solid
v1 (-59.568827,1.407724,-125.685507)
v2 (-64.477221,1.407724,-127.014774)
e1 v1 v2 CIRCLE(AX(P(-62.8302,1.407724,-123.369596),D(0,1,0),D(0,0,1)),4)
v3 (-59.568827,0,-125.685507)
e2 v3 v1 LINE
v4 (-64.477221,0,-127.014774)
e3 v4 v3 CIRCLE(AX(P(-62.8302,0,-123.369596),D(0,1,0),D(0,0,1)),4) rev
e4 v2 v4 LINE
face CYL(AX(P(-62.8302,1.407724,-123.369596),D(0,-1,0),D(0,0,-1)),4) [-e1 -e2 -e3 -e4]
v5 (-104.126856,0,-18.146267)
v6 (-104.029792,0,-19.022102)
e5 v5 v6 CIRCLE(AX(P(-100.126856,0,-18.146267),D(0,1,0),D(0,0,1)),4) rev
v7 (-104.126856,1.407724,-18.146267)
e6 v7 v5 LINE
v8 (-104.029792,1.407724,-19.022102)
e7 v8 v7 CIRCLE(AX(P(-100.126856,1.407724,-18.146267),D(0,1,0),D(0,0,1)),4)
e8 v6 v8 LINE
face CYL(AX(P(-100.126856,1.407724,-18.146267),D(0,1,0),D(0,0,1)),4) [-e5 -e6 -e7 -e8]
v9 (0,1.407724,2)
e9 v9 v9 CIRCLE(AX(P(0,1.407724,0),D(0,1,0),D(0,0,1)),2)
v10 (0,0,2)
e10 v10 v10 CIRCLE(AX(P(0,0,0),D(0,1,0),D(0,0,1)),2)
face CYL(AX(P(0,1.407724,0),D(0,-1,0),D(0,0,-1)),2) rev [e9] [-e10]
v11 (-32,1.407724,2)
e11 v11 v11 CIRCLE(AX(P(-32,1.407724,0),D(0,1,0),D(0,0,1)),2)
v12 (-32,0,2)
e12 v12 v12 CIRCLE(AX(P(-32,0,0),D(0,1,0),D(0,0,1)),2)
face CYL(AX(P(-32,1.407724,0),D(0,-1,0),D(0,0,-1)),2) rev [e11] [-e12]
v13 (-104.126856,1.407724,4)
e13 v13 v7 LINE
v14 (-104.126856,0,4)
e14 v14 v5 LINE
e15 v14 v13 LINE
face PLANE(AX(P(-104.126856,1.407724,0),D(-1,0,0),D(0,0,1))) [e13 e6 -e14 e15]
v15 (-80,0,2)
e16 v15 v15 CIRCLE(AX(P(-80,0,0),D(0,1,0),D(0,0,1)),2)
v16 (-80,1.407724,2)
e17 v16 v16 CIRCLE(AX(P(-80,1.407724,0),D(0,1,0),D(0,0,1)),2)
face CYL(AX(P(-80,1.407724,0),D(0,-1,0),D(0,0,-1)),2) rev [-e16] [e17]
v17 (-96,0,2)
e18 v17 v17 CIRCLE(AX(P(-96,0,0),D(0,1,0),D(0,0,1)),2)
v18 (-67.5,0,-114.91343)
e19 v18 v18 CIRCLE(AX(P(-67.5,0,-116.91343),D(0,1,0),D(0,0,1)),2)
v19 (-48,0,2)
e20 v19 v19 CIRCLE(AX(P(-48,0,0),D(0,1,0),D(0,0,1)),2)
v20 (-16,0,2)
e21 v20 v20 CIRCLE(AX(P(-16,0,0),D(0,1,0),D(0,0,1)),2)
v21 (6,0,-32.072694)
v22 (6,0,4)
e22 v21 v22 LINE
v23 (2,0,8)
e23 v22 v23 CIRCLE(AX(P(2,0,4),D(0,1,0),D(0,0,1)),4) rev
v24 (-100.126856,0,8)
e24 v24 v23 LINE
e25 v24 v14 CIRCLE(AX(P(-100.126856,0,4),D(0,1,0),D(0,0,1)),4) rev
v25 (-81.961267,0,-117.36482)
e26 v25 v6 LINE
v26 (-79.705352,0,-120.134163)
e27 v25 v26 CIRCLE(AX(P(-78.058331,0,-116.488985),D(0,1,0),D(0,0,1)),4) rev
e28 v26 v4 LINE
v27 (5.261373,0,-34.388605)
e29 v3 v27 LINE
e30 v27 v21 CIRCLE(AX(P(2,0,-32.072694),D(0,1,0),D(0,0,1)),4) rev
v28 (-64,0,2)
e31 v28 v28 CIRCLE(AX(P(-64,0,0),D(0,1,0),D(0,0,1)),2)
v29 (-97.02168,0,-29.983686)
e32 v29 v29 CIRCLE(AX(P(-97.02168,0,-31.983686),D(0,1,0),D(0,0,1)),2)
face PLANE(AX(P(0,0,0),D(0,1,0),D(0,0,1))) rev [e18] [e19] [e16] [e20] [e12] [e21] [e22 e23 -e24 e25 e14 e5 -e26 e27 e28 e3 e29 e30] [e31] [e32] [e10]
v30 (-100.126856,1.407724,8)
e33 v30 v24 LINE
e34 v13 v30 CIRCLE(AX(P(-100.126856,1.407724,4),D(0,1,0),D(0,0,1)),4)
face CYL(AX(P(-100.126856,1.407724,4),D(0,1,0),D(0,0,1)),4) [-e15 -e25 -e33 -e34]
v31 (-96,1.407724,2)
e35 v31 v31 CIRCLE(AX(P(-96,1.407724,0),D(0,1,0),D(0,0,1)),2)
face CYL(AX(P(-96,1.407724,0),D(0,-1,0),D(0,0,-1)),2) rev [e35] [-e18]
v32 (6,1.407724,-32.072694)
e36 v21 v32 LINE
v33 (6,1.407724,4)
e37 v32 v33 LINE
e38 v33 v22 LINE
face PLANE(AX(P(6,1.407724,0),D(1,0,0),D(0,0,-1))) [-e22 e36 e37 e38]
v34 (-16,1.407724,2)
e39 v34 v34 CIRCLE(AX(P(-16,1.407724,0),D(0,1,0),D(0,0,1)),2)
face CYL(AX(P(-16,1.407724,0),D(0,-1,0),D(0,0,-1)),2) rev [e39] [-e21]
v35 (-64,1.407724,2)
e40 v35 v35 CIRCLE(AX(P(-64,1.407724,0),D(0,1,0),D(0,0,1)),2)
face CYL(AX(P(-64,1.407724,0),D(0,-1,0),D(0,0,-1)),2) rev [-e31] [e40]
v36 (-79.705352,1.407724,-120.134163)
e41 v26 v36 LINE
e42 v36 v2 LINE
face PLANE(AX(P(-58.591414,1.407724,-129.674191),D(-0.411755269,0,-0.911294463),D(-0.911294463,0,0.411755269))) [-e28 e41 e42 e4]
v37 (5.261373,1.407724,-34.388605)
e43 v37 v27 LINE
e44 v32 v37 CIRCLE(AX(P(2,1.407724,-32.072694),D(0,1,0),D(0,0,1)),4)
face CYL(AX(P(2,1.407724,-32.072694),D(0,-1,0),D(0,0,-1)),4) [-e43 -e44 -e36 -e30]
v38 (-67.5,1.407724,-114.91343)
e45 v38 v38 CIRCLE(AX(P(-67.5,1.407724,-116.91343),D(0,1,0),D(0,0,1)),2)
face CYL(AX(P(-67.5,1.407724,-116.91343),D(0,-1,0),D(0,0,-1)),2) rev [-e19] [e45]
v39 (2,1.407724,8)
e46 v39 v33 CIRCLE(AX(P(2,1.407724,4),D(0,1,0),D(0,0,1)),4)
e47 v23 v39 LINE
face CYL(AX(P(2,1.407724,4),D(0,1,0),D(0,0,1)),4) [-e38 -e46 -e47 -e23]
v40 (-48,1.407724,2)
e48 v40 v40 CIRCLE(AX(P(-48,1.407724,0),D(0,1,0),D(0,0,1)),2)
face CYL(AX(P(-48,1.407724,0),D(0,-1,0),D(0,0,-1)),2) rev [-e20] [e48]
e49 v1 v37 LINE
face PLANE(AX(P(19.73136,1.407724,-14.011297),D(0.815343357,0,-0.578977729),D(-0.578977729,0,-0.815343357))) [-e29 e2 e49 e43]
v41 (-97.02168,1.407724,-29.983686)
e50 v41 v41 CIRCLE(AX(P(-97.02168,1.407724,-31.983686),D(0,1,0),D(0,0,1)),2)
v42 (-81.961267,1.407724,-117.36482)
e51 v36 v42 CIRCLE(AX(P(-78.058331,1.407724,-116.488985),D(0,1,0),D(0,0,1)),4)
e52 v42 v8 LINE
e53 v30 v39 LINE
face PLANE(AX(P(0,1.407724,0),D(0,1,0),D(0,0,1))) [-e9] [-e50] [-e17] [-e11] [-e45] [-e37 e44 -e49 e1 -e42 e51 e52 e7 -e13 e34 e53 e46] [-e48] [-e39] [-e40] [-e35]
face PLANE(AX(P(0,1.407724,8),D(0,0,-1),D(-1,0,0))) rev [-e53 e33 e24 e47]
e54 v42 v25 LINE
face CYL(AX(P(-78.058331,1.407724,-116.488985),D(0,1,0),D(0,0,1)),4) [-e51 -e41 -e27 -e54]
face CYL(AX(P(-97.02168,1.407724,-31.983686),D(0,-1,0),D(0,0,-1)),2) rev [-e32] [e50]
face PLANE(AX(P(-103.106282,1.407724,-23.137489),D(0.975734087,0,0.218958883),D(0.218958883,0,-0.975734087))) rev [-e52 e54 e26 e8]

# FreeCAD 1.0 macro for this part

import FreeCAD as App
import Part
import Sketcher

V = App.Vector
Q = App.Units.Quantity


def edges_at(feature, points):
    """Names of the edges that pass closest to the given points."""
    edges = feature.Shape.Edges
    near = lambda p: min(range(len(edges)), key=lambda i: edges[i].distToShape(Part.Vertex(*p))[0])
    return sorted({f"Edge{near(p) + 1}" for p in points})


def add_polygon(sketch, points):
    """Adds a closed chain of lines whose ends are joined by coincident constraints."""
    first, n = sketch.GeometryCount, len(points)
    for a, b in zip(points, points[1:] + points[:1]):
        sketch.addGeometry(Part.LineSegment(App.Vector(*a, 0), App.Vector(*b, 0)), False)
    for i in range(n):
        sketch.addConstraint(Sketcher.Constraint("Coincident", first + i, 2, first + (i + 1) % n, 1))

doc = App.newDocument("Part")
body = doc.addObject("PartDesign::Body", "Body")

sketch1 = doc.addObject("Sketcher::SketchObject", "Sketch")
body.addObject(sketch1)
sketch1.AttachmentSupport = (doc.XZ_Plane, [""])
sketch1.MapMode = "FlatFace"
add_polygon(sketch1, [(6, 8), (6, -33.348437), (-61.475761, -128.370941), (-81.524239, -119.312325), (-104.126856, -18.589563), (-104.126856, 8)])
sketch1.addGeometry(Part.Circle(V(-96, 0, 0), V(0, 0, 1), 2), False)
sketch1.addGeometry(Part.Circle(V(-80, 0, 0), V(0, 0, 1), 2), False)
sketch1.addGeometry(Part.Circle(V(-64, 0, 0), V(0, 0, 1), 2), False)
sketch1.addGeometry(Part.Circle(V(-97.02168, -31.983686, 0), V(0, 0, 1), 2), False)
sketch1.addGeometry(Part.Circle(V(-48, 0, 0), V(0, 0, 1), 2), False)
sketch1.addGeometry(Part.Circle(V(-32, 0, 0), V(0, 0, 1), 2), False)
sketch1.addGeometry(Part.Circle(V(-16, 0, 0), V(0, 0, 1), 2), False)
sketch1.addGeometry(Part.Circle(V(0, 0, 0), V(0, 0, 1), 2), False)
sketch1.addGeometry(Part.Circle(V(-67.5, -116.91343, 0), V(0, 0, 1), 2), False)
sketch1.addConstraint([
    Sketcher.Constraint("Vertical", 0),
    Sketcher.Constraint("Vertical", 4),
    Sketcher.Constraint("Horizontal", 5),
    Sketcher.Constraint("Coincident", 13, 3, -1, 1),
    Sketcher.Constraint("Equal", 6, 7),
    Sketcher.Constraint("Equal", 7, 8),
    Sketcher.Constraint("Equal", 8, 9),
    Sketcher.Constraint("Equal", 9, 10),
    Sketcher.Constraint("Equal", 10, 11),
    Sketcher.Constraint("Equal", 11, 12),
    Sketcher.Constraint("Equal", 12, 13),
    Sketcher.Constraint("Equal", 13, 14),
    Sketcher.Constraint("PointOnObject", 6, 3, -1),
    Sketcher.Constraint("PointOnObject", 7, 3, -1),
    Sketcher.Constraint("PointOnObject", 8, 3, -1),
    Sketcher.Constraint("PointOnObject", 10, 3, -1),
    Sketcher.Constraint("PointOnObject", 11, 3, -1),
    Sketcher.Constraint("PointOnObject", 12, 3, -1),
    Sketcher.Constraint("Diameter", 6, Q("4 mm")),
    Sketcher.Constraint("Distance", 2, Q("22 mm")),
    Sketcher.Constraint("DistanceX", 6, 3, -1, 1, Q("96 mm")),
    Sketcher.Constraint("DistanceX", 7, 3, -1, 1, Q("80 mm")),
    Sketcher.Constraint("DistanceX", 8, 3, -1, 1, Q("64 mm")),
    Sketcher.Constraint("DistanceX", 10, 3, -1, 1, Q("48 mm")),
    Sketcher.Constraint("DistanceX", 11, 3, -1, 1, Q("32 mm")),
    Sketcher.Constraint("DistanceX", 12, 3, -1, 1, Q("16 mm")),
    Sketcher.Constraint("DistanceX", -1, 1, 0, 2, Q("6 mm")),
    Sketcher.Constraint("DistanceY", -1, 1, 4, 2, Q("8 mm")),
    Sketcher.Constraint("DistanceX", 14, 3, -1, 1, Q("67.5 mm")),
    Sketcher.Constraint("Distance", 1, Q("116.54293 mm")),
    Sketcher.Constraint("DistanceX", 5, 1, 5, 2, Q("110.126856 mm")),
    Sketcher.Constraint("DistanceY", 0, 2, 0, 1, Q("41.348437 mm")),
    Sketcher.Constraint("DistanceY", 4, 1, 4, 2, Q("26.589563 mm")),
    Sketcher.Constraint("DistanceX", 9, 3, -1, 1, Q("97.02168 mm")),
    Sketcher.Constraint("DistanceY", 14, 3, -1, 1, Q("116.91343 mm")),
    Sketcher.Constraint("DistanceX", 1, 2, -1, 1, Q("61.475761 mm")),
    Sketcher.Constraint("DistanceX", 2, 2, -1, 1, Q("81.524239 mm")),
    Sketcher.Constraint("DistanceY", 2, 2, 9, 3, Q("87.328639 mm")),
])
pad1 = doc.addObject("PartDesign::Pad", "Pad")
body.addObject(pad1)
pad1.Profile = sketch1
pad1.Length = 1.407724
pad1.Reversed = True
doc.recompute()

fillet = doc.addObject("PartDesign::Fillet", "Fillet")
body.addObject(fillet)
fillet.Base = (pad1, edges_at(pad1, [
    (6, 0.704, 8),
    (-104.127, 0.704, 8),
    (-104.127, 0.704, -18.59),
    (-81.524, 0.704, -119.312),
    (-61.476, 0.704, -128.371),
    (6, 0.704, -33.348),
]))
fillet.Radius = 4

doc.recompute()
